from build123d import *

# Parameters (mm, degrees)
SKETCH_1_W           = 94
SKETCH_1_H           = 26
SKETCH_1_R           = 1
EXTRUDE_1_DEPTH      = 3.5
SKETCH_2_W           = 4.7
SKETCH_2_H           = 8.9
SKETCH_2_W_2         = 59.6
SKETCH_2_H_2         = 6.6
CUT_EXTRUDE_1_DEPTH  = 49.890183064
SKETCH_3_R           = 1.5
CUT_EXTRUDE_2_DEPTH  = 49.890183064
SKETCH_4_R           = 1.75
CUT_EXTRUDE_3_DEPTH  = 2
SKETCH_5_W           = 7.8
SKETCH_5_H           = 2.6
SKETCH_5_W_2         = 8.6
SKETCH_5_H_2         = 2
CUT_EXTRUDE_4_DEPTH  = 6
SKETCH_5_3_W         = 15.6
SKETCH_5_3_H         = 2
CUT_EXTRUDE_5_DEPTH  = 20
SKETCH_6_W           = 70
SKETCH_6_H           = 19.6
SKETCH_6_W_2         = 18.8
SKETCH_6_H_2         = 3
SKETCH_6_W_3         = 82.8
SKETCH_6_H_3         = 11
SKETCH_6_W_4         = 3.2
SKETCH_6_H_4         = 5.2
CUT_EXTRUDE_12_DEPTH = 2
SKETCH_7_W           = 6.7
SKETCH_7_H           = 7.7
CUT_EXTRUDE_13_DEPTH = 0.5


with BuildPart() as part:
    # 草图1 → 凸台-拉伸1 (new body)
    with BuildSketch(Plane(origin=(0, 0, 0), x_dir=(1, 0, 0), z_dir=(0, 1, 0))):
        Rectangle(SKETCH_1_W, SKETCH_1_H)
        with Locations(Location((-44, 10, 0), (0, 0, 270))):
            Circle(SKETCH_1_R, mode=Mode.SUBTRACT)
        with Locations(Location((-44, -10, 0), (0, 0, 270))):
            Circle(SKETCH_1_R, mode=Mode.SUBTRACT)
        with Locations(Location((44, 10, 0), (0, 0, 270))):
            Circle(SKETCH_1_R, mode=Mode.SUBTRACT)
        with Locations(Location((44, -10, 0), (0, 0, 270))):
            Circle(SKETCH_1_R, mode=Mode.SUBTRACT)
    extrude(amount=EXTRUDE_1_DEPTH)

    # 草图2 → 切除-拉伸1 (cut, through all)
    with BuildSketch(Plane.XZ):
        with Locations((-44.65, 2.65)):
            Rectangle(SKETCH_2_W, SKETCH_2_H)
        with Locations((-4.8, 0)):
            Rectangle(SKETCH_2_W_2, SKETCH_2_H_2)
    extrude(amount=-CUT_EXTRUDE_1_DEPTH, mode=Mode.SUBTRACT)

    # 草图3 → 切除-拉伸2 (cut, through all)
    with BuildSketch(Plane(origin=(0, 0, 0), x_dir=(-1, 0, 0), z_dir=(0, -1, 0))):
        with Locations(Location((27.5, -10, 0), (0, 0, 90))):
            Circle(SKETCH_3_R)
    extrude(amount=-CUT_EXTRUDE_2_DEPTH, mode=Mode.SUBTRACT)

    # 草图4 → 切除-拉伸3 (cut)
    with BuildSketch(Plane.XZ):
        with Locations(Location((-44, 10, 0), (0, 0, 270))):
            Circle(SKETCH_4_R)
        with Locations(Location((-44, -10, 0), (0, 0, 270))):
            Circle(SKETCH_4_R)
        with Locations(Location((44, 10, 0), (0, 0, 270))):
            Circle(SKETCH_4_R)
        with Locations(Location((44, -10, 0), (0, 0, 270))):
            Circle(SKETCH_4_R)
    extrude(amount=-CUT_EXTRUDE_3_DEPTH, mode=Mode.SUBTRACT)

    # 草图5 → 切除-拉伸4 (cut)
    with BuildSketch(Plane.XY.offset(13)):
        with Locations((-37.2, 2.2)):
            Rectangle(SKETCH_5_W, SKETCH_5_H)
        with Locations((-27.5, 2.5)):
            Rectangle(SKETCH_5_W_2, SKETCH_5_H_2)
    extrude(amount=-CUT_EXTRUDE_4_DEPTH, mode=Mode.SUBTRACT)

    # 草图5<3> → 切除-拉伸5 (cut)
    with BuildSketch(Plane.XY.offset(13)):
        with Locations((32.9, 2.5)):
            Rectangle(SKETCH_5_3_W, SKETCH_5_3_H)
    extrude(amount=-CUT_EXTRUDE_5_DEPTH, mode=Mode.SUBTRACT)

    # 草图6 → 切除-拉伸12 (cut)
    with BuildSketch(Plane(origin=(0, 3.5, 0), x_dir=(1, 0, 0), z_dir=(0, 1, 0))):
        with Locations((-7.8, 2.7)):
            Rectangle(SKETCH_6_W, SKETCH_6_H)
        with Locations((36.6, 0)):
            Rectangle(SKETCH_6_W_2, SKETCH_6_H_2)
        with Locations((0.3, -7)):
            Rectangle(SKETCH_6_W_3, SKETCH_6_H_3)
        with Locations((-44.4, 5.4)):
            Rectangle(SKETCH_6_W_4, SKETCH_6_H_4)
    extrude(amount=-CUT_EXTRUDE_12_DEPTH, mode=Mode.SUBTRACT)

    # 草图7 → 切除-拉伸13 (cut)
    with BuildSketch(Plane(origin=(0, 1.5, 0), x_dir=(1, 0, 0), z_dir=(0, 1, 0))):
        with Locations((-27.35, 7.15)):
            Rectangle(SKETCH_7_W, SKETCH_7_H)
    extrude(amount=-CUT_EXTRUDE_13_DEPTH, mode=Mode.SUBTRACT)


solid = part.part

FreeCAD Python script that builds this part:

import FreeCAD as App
import Part
import Sketcher

V = App.Vector

doc = App.newDocument("Part")
params = doc.addObject("Spreadsheet::Sheet", "Params")
for row, (alias, value) in enumerate([
    ("sketch1_diameter", "2 mm"),
    ("sketch1_width", "94 mm"),
    ("sketch1_height", "26 mm"),
    ("pad1_length", "3.5 mm"),
    ("sketch2_width", "4.7 mm"),
    ("sketch2_width2", "59.6 mm"),
    ("sketch2_height", "8.9 mm"),
    ("sketch2_height2", "6.6 mm"),
    ("sketch3_diameter", "3 mm"),
    ("sketch4_diameter", "3.5 mm"),
    ("pocket3_length", "2 mm"),
    ("sketch5_height", "2 mm"),
    ("sketch5_width", "7.8 mm"),
    ("sketch5_width2", "8.6 mm"),
    ("sketch5_height2", "2.6 mm"),
    ("pocket4_length", "6 mm"),
    ("sketch6_height", "2 mm"),
    ("sketch6_width", "15.6 mm"),
    ("pocket5_length", "20 mm"),
    ("sketch7_width", "70 mm"),
    ("sketch7_height", "11 mm"),
    ("sketch7_height2", "3 mm"),
    ("sketch7_width2", "1.7 mm"),
    ("sketch7_width3", "82.8 mm"),
    ("pocket6_length", "2 mm"),
    ("sketch8_width", "6.7 mm"),
    ("sketch8_height", "7.7 mm"),
    ("pocket7_length", "0.5 mm"),
], start=1):
    params.set(f"A{row}", alias)
    params.set(f"B{row}", "=" + value)
    params.setAlias(f"B{row}", alias)

body = doc.addObject("PartDesign::Body", "Body")

# Sketch on XZ plane
sketch1 = body.newObject("Sketcher::SketchObject", "Sketch")
sketch1.AttachmentSupport = (doc.getObject("XZ_Plane"), [""])
sketch1.MapMode = "FlatFace"
sketch1.addGeometry(Part.LineSegment(V(-47, -13, 0), V(-47, 13, 0)), False)
sketch1.addGeometry(Part.LineSegment(V(-47, 13, 0), V(47, 13, 0)), False)
sketch1.addGeometry(Part.LineSegment(V(47, 13, 0), V(47, -13, 0)), False)
sketch1.addGeometry(Part.LineSegment(V(47, -13, 0), V(-47, -13, 0)), False)
sketch1.addGeometry(Part.Circle(V(-44, 10, 0), V(0, 0, 1), 1), False)
sketch1.addGeometry(Part.Circle(V(44, 10, 0), V(0, 0, 1), 1), False)
sketch1.addGeometry(Part.Circle(V(-44, -10, 0), V(0, 0, 1), 1), False)
sketch1.addGeometry(Part.Circle(V(44, -10, 0), V(0, 0, 1), 1), False)
sketch1.addConstraint(Sketcher.Constraint("Coincident", 0, 2, 1, 1))
sketch1.addConstraint(Sketcher.Constraint("Coincident", 1, 2, 2, 1))
sketch1.addConstraint(Sketcher.Constraint("Coincident", 2, 2, 3, 1))
sketch1.addConstraint(Sketcher.Constraint("Coincident", 3, 2, 0, 1))
sketch1.addConstraint(Sketcher.Constraint("Vertical", 0))
sketch1.addConstraint(Sketcher.Constraint("Horizontal", 1))
sketch1.addConstraint(Sketcher.Constraint("Vertical", 2))
sketch1.addConstraint(Sketcher.Constraint("Horizontal", 3))
sketch1.addConstraint(Sketcher.Constraint("Equal", 4, 5))
sketch1.addConstraint(Sketcher.Constraint("Equal", 5, 6))
sketch1.addConstraint(Sketcher.Constraint("Equal", 6, 7))
sketch1.addConstraint(Sketcher.Constraint("Symmetric", 5, 3, 6, 3, -1, 1))
sketch1.addConstraint(Sketcher.Constraint("Symmetric", 4, 3, 7, 3, -1, 1))
sketch1.addConstraint(Sketcher.Constraint("Symmetric", 0, 2, 2, 2, -1, 1))
sketch1.addConstraint(Sketcher.Constraint("Symmetric", 4, 3, 5, 3, -2))
sketch1.addConstraint(Sketcher.Constraint("Diameter", 4, 2.0))
sketch1.addConstraint(Sketcher.Constraint("DistanceX", 1, 1, 1, 2, 94.0))
sketch1.addConstraint(Sketcher.Constraint("DistanceY", 0, 1, 0, 2, 26.0))
sketch1.addConstraint(Sketcher.Constraint("DistanceX", 4, 3, -1, 1, 44.0))
sketch1.addConstraint(Sketcher.Constraint("DistanceY", -1, 1, 4, 3, 10.0))
sketch1.setExpression("Constraints[15]", "Params.sketch1_diameter")
sketch1.setExpression("Constraints[16]", "Params.sketch1_width")
sketch1.setExpression("Constraints[17]", "Params.sketch1_height")
pad1 = body.newObject("PartDesign::Pad", "Pad")
pad1.Profile = sketch1
pad1.setExpression("Length", "Params.pad1_length")
pad1.Reversed = True

# Sketch on XZ plane
sketch2 = body.newObject("Sketcher::SketchObject", "Sketch001")
sketch2.AttachmentSupport = (doc.getObject("XZ_Plane"), [""])
sketch2.MapMode = "FlatFace"
sketch2.addGeometry(Part.LineSegment(V(-47, 7.1, 0), V(-47, -1.8, 0)), False)
sketch2.addGeometry(Part.LineSegment(V(-47, -1.8, 0), V(-42.3, -1.8, 0)), False)
sketch2.addGeometry(Part.LineSegment(V(-42.3, -1.8, 0), V(-42.3, 7.1, 0)), False)
sketch2.addGeometry(Part.LineSegment(V(-42.3, 7.1, 0), V(-47, 7.1, 0)), False)
sketch2.addGeometry(Part.LineSegment(V(-34.6, 3.3, 0), V(-34.6, -3.3, 0)), False)
sketch2.addGeometry(Part.LineSegment(V(-34.6, -3.3, 0), V(25, -3.3, 0)), False)
sketch2.addGeometry(Part.LineSegment(V(25, -3.3, 0), V(25, 3.3, 0)), False)
sketch2.addGeometry(Part.LineSegment(V(25, 3.3, 0), V(-34.6, 3.3, 0)), False)
sketch2.addConstraint(Sketcher.Constraint("Coincident", 0, 2, 1, 1))
sketch2.addConstraint(Sketcher.Constraint("Coincident", 1, 2, 2, 1))
sketch2.addConstraint(Sketcher.Constraint("Coincident", 2, 2, 3, 1))
sketch2.addConstraint(Sketcher.Constraint("Coincident", 3, 2, 0, 1))
sketch2.addConstraint(Sketcher.Constraint("Coincident", 4, 2, 5, 1))
sketch2.addConstraint(Sketcher.Constraint("Coincident", 5, 2, 6, 1))
sketch2.addConstraint(Sketcher.Constraint("Coincident", 6, 2, 7, 1))
sketch2.addConstraint(Sketcher.Constraint("Coincident", 7, 2, 4, 1))
sketch2.addConstraint(Sketcher.Constraint("Vertical", 0))
sketch2.addConstraint(Sketcher.Constraint("Horizontal", 1))
sketch2.addConstraint(Sketcher.Constraint("Vertical", 2))
sketch2.addConstraint(Sketcher.Constraint("Horizontal", 3))
sketch2.addConstraint(Sketcher.Constraint("Vertical", 4))
sketch2.addConstraint(Sketcher.Constraint("Horizontal", 5))
sketch2.addConstraint(Sketcher.Constraint("Vertical", 6))
sketch2.addConstraint(Sketcher.Constraint("Horizontal", 7))
sketch2.addConstraint(Sketcher.Constraint("DistanceX", 1, 1, 1, 2, 4.7))
sketch2.addConstraint(Sketcher.Constraint("DistanceX", 5, 1, 5, 2, 59.6))
sketch2.addConstraint(Sketcher.Constraint("DistanceY", 0, 2, 0, 1, 8.9))
sketch2.addConstraint(Sketcher.Constraint("DistanceY", 4, 2, 4, 1, 6.6))
sketch2.addConstraint(Sketcher.Constraint("DistanceX", 0, 2, -1, 1, 47.0))
sketch2.addConstraint(Sketcher.Constraint("DistanceX", -1, 1, 5, 2, 25.0))
sketch2.addConstraint(Sketcher.Constraint("DistanceY", 0, 2, -1, 1, 1.8))
sketch2.addConstraint(Sketcher.Constraint("DistanceY", 4, 2, -1, 1, 3.3))
sketch2.setExpression("Constraints[16]", "Params.sketch2_width")
sketch2.setExpression("Constraints[17]", "Params.sketch2_width2")
sketch2.setExpression("Constraints[18]", "Params.sketch2_height")
sketch2.setExpression("Constraints[19]", "Params.sketch2_height2")
pocket1 = body.newObject("PartDesign::Pocket", "Pocket")
pocket1.Profile = sketch2
pocket1.Type = "ThroughAll"

# Sketch on XZ plane
sketch3 = body.newObject("Sketcher::SketchObject", "Sketch002")
sketch3.AttachmentSupport = (doc.getObject("XZ_Plane"), [""])
sketch3.MapMode = "FlatFace"
sketch3.addGeometry(Part.Circle(V(-27.5, 10, 0), V(0, 0, 1), 1.5), False)
sketch3.addConstraint(Sketcher.Constraint("Diameter", 0, 3.0))
sketch3.addConstraint(Sketcher.Constraint("DistanceY", -1, 1, 0, 3, 10.0))
sketch3.addConstraint(Sketcher.Constraint("DistanceX", 0, 3, -1, 1, 27.5))
sketch3.setExpression("Constraints[0]", "Params.sketch3_diameter")
pocket2 = body.newObject("PartDesign::Pocket", "Pocket001")
pocket2.Profile = sketch3
pocket2.Type = "ThroughAll"

# Sketch on XZ plane
sketch4 = body.newObject("Sketcher::SketchObject", "Sketch003")
sketch4.AttachmentSupport = (doc.getObject("XZ_Plane"), [""])
sketch4.MapMode = "FlatFace"
sketch4.addGeometry(Part.Circle(V(-44, 10, 0), V(0, 0, 1), 1.8), False)
sketch4.addGeometry(Part.Circle(V(-44, -10, 0), V(0, 0, 1), 1.8), False)
sketch4.addGeometry(Part.Circle(V(44, 10, 0), V(0, 0, 1), 1.8), False)
sketch4.addGeometry(Part.Circle(V(44, -10, 0), V(0, 0, 1), 1.8), False)
sketch4.addConstraint(Sketcher.Constraint("Equal", 0, 1))
sketch4.addConstraint(Sketcher.Constraint("Equal", 1, 2))
sketch4.addConstraint(Sketcher.Constraint("Equal", 2, 3))
sketch4.addConstraint(Sketcher.Constraint("Symmetric", 1, 3, 2, 3, -1, 1))
sketch4.addConstraint(Sketcher.Constraint("Symmetric", 0, 3, 3, 3, -1, 1))
sketch4.addConstraint(Sketcher.Constraint("Symmetric", 0, 3, 2, 3, -2))
sketch4.addConstraint(Sketcher.Constraint("Diameter", 0, 3.5))
sketch4.addConstraint(Sketcher.Constraint("DistanceX", 0, 3, -1, 1, 44.0))
sketch4.addConstraint(Sketcher.Constraint("DistanceY", -1, 1, 0, 3, 10.0))
sketch4.setExpression("Constraints[6]", "Params.sketch4_diameter")
pocket3 = body.newObject("PartDesign::Pocket", "Pocket002")
pocket3.Profile = sketch4
pocket3.setExpression("Length", "Params.pocket3_length")

# Sketch on XY plane
sketch5 = body.newObject("Sketcher::SketchObject", "Sketch004")
sketch5.AttachmentSupport = (doc.getObject("XY_Plane"), [""])
sketch5.MapMode = "FlatFace"
sketch5.AttachmentOffset = App.Placement(V(0, 0, 13), App.Rotation())
sketch5.addGeometry(Part.LineSegment(V(-41.1, 3.5, 0), V(-41.1, 0.9, 0)), False)
sketch5.addGeometry(Part.LineSegment(V(-41.1, 0.9, 0), V(-33.3, 0.9, 0)), False)
sketch5.addGeometry(Part.LineSegment(V(-33.3, 0.9, 0), V(-33.3, 3.5, 0)), False)
sketch5.addGeometry(Part.LineSegment(V(-33.3, 3.5, 0), V(-41.1, 3.5, 0)), False)
sketch5.addGeometry(Part.LineSegment(V(-31.8, 3.5, 0), V(-31.8, 1.5, 0)), False)
sketch5.addGeometry(Part.LineSegment(V(-31.8, 1.5, 0), V(-23.2, 1.5, 0)), False)
sketch5.addGeometry(Part.LineSegment(V(-23.2, 1.5, 0), V(-23.2, 3.5, 0)), False)
sketch5.addGeometry(Part.LineSegment(V(-23.2, 3.5, 0), V(-31.8, 3.5, 0)), False)
sketch5.addConstraint(Sketcher.Constraint("Coincident", 0, 2, 1, 1))
sketch5.addConstraint(Sketcher.Constraint("Coincident", 1, 2, 2, 1))
sketch5.addConstraint(Sketcher.Constraint("Coincident", 2, 2, 3, 1))
sketch5.addConstraint(Sketcher.Constraint("Coincident", 3, 2, 0, 1))
sketch5.addConstraint(Sketcher.Constraint("Coincident", 4, 2, 5, 1))
sketch5.addConstraint(Sketcher.Constraint("Coincident", 5, 2, 6, 1))
sketch5.addConstraint(Sketcher.Constraint("Coincident", 6, 2, 7, 1))
sketch5.addConstraint(Sketcher.Constraint("Coincident", 7, 2, 4, 1))
sketch5.addConstraint(Sketcher.Constraint("Vertical", 0))
sketch5.addConstraint(Sketcher.Constraint("Horizontal", 1))
sketch5.addConstraint(Sketcher.Constraint("Vertical", 2))
sketch5.addConstraint(Sketcher.Constraint("Horizontal", 3))
sketch5.addConstraint(Sketcher.Constraint("Vertical", 4))
sketch5.addConstraint(Sketcher.Constraint("Horizontal", 5))
sketch5.addConstraint(Sketcher.Constraint("Vertical", 6))
sketch5.addConstraint(Sketcher.Constraint("Horizontal", 7))
sketch5.addConstraint(Sketcher.Constraint("Horizontal", 3, 2, 6, 2))
sketch5.addConstraint(Sketcher.Constraint("DistanceY", 4, 2, 4, 1, 2.0))
sketch5.addConstraint(Sketcher.Constraint("DistanceX", 1, 1, 1, 2, 7.8))
sketch5.addConstraint(Sketcher.Constraint("DistanceX", 5, 1, 5, 2, 8.6))
sketch5.addConstraint(Sketcher.Constraint("DistanceY", 0, 2, 0, 1, 2.6))
sketch5.addConstraint(Sketcher.Constraint("DistanceX", 0, 2, -1, 1, 41.1))
sketch5.addConstraint(Sketcher.Constraint("DistanceY", -1, 1, 0, 2, 0.9))
sketch5.addConstraint(Sketcher.Constraint("DistanceX", 4, 2, -1, 1, 31.8))
sketch5.setExpression("Constraints[17]", "Params.sketch5_height")
sketch5.setExpression("Constraints[18]", "Params.sketch5_width")
sketch5.setExpression("Constraints[19]", "Params.sketch5_width2")
sketch5.setExpression("Constraints[20]", "Params.sketch5_height2")
pocket4 = body.newObject("PartDesign::Pocket", "Pocket003")
pocket4.Profile = sketch5
pocket4.setExpression("Length", "Params.pocket4_length")

# Sketch on XY plane
sketch6 = body.newObject("Sketcher::SketchObject", "Sketch005")
sketch6.AttachmentSupport = (doc.getObject("XY_Plane"), [""])
sketch6.MapMode = "FlatFace"
sketch6.AttachmentOffset = App.Placement(V(0, 0, 13), App.Rotation())
sketch6.addGeometry(Part.LineSegment(V(25.1, 3.5, 0), V(25.1, 1.5, 0)), False)
sketch6.addGeometry(Part.LineSegment(V(25.1, 1.5, 0), V(40.7, 1.5, 0)), False)
sketch6.addGeometry(Part.LineSegment(V(40.7, 1.5, 0), V(40.7, 3.5, 0)), False)
sketch6.addGeometry(Part.LineSegment(V(40.7, 3.5, 0), V(25.1, 3.5, 0)), False)
sketch6.addConstraint(Sketcher.Constraint("Coincident", 0, 2, 1, 1))
sketch6.addConstraint(Sketcher.Constraint("Coincident", 1, 2, 2, 1))
sketch6.addConstraint(Sketcher.Constraint("Coincident", 2, 2, 3, 1))
sketch6.addConstraint(Sketcher.Constraint("Coincident", 3, 2, 0, 1))
sketch6.addConstraint(Sketcher.Constraint("Vertical", 0))
sketch6.addConstraint(Sketcher.Constraint("Horizontal", 1))
sketch6.addConstraint(Sketcher.Constraint("Vertical", 2))
sketch6.addConstraint(Sketcher.Constraint("Horizontal", 3))
sketch6.addConstraint(Sketcher.Constraint("DistanceY", 0, 2, 0, 1, 2.0))
sketch6.addConstraint(Sketcher.Constraint("DistanceX", 1, 1, 1, 2, 15.6))
sketch6.addConstraint(Sketcher.Constraint("DistanceX", -1, 1, 0, 2, 25.1))
sketch6.addConstraint(Sketcher.Constraint("DistanceY", -1, 1, 0, 2, 1.5))
sketch6.setExpression("Constraints[8]", "Params.sketch6_height")
sketch6.setExpression("Constraints[9]", "Params.sketch6_width")
pocket5 = body.newObject("PartDesign::Pocket", "Pocket004")
pocket5.Profile = sketch6
pocket5.setExpression("Length", "Params.pocket5_length")

# Sketch on XZ plane
sketch7 = body.newObject("Sketcher::SketchObject", "Sketch006")
sketch7.AttachmentSupport = (doc.getObject("XZ_Plane"), [""])
sketch7.MapMode = "FlatFace"
sketch7.AttachmentOffset = App.Placement(V(0, 0, -3.5), App.Rotation())
sketch7.addGeometry(Part.LineSegment(V(-42.8, -2.8, 0), V(-42.8, 7.1, 0)), False)
sketch7.addGeometry(Part.LineSegment(V(-42.8, 7.1, 0), V(-41.1, 7.1, 0)), False)
sketch7.addGeometry(Part.LineSegment(V(-41.1, 7.1, 0), V(-41.1, 12.5, 0)), False)
sketch7.addGeometry(Part.LineSegment(V(-41.1, 12.5, 0), V(41.7, 12.5, 0)), False)
sketch7.addGeometry(Part.LineSegment(V(41.7, 12.5, 0), V(41.7, 1.5, 0)), False)
sketch7.addGeometry(Part.LineSegment(V(41.7, 1.5, 0), V(46, 1.5, 0)), False)
sketch7.addGeometry(Part.LineSegment(V(46, 1.5, 0), V(46, -1.5, 0)), False)
sketch7.addGeometry(Part.LineSegment(V(46, -1.5, 0), V(27.2, -1.5, 0)), False)
sketch7.addGeometry(Part.LineSegment(V(27.2, -1.5, 0), V(27.2, -12.5, 0)), False)
sketch7.addGeometry(Part.LineSegment(V(27.2, -12.5, 0), V(-42.8, -12.5, 0)), False)
sketch7.addGeometry(Part.LineSegment(V(-42.8, -12.5, 0), V(-42.8, -8, 0)), False)
sketch7.addGeometry(Part.LineSegment(V(-42.8, -8, 0), V(-46, -8, 0)), False)
sketch7.addGeometry(Part.LineSegment(V(-46, -8, 0), V(-46, -2.8, 0)), False)
sketch7.addGeometry(Part.LineSegment(V(-46, -2.8, 0), V(-42.8, -2.8, 0)), False)
sketch7.addConstraint(Sketcher.Constraint("Coincident", 0, 2, 1, 1))
sketch7.addConstraint(Sketcher.Constraint("Coincident", 1, 2, 2, 1))
sketch7.addConstraint(Sketcher.Constraint("Coincident", 2, 2, 3, 1))
sketch7.addConstraint(Sketcher.Constraint("Coincident", 3, 2, 4, 1))
sketch7.addConstraint(Sketcher.Constraint("Coincident", 4, 2, 5, 1))
sketch7.addConstraint(Sketcher.Constraint("Coincident", 5, 2, 6, 1))
sketch7.addConstraint(Sketcher.Constraint("Coincident", 6, 2, 7, 1))
sketch7.addConstraint(Sketcher.Constraint("Coincident", 7, 2, 8, 1))
sketch7.addConstraint(Sketcher.Constraint("Coincident", 8, 2, 9, 1))
sketch7.addConstraint(Sketcher.Constraint("Coincident", 9, 2, 10, 1))
sketch7.addConstraint(Sketcher.Constraint("Coincident", 10, 2, 11, 1))
sketch7.addConstraint(Sketcher.Constraint("Coincident", 11, 2, 12, 1))
sketch7.addConstraint(Sketcher.Constraint("Coincident", 12, 2, 13, 1))
sketch7.addConstraint(Sketcher.Constraint("Coincident", 13, 2, 0, 1))
sketch7.addConstraint(Sketcher.Constraint("Vertical", 0))
sketch7.addConstraint(Sketcher.Constraint("Horizontal", 1))
sketch7.addConstraint(Sketcher.Constraint("Vertical", 2))
sketch7.addConstraint(Sketcher.Constraint("Horizontal", 3))
sketch7.addConstraint(Sketcher.Constraint("Vertical", 4))
sketch7.addConstraint(Sketcher.Constraint("Horizontal", 5))
sketch7.addConstraint(Sketcher.Constraint("Vertical", 6))
sketch7.addConstraint(Sketcher.Constraint("Horizontal", 7))
sketch7.addConstraint(Sketcher.Constraint("Vertical", 8))
sketch7.addConstraint(Sketcher.Constraint("Horizontal", 9))
sketch7.addConstraint(Sketcher.Constraint("Vertical", 10))
sketch7.addConstraint(Sketcher.Constraint("Horizontal", 11))
sketch7.addConstraint(Sketcher.Constraint("Vertical", 12))
sketch7.addConstraint(Sketcher.Constraint("Horizontal", 13))
sketch7.addConstraint(Sketcher.Constraint("Vertical", 0, 2, 9, 2))
sketch7.addConstraint(Sketcher.Constraint("Equal", 4, 8))
sketch7.addConstraint(Sketcher.Constraint("DistanceX", 9, 2, 9, 1, 70.0))
sketch7.addConstraint(Sketcher.Constraint("DistanceY", 4, 2, 4, 1, 11.0))
sketch7.addConstraint(Sketcher.Constraint("DistanceY", 6, 2, 6, 1, 3.0))
sketch7.addConstraint(Sketcher.Constraint("DistanceX", 1, 1, 1, 2, 1.7))
sketch7.addConstraint(Sketcher.Constraint("DistanceX", 3, 1, 3, 2, 82.8))
sketch7.addConstraint(Sketcher.Constraint("DistanceX", 5, 1, 5, 2, 4.3))
sketch7.addConstraint(Sketcher.Constraint("DistanceX", 11, 2, 11, 1, 3.2))
sketch7.addConstraint(Sketcher.Constraint("DistanceY", 0, 1, 0, 2, 9.9))
sketch7.addConstraint(Sketcher.Constraint("DistanceY", 2, 1, 2, 2, 5.4))
sketch7.addConstraint(Sketcher.Constraint("DistanceY", 10, 1, 10, 2, 4.5))
sketch7.addConstraint(Sketcher.Constraint("DistanceX", -1, 1, 5, 2, 46.0))
sketch7.addConstraint(Sketcher.Constraint("DistanceY", 10, 2, -1, 1, 8.0))
sketch7.setExpression("Constraints[30]", "Params.sketch7_width")
sketch7.setExpression("Constraints[31]", "Params.sketch7_height")
sketch7.setExpression("Constraints[32]", "Params.sketch7_height2")
sketch7.setExpression("Constraints[33]", "Params.sketch7_width2")
sketch7.setExpression("Constraints[34]", "Params.sketch7_width3")
pocket6 = body.newObject("PartDesign::Pocket", "Pocket005")
pocket6.Profile = sketch7
pocket6.setExpression("Length", "Params.pocket6_length")
pocket6.Reversed = True

# Sketch on XZ plane
sketch8 = body.newObject("Sketcher::SketchObject", "Sketch007")
sketch8.AttachmentSupport = (doc.getObject("XZ_Plane"), [""])
sketch8.MapMode = "FlatFace"
sketch8.AttachmentOffset = App.Placement(V(0, 0, -1.5), App.Rotation())
sketch8.addGeometry(Part.LineSegment(V(-31, -11, 0), V(-31, -3, 0)), False)
sketch8.addGeometry(Part.LineSegment(V(-31, -3, 0), V(-24, -3, 0)), False)
sketch8.addGeometry(Part.LineSegment(V(-24, -3, 0), V(-24, -11, 0)), False)
sketch8.addGeometry(Part.LineSegment(V(-24, -11, 0), V(-31, -11, 0)), False)
sketch8.addConstraint(Sketcher.Constraint("Coincident", 0, 2, 1, 1))
sketch8.addConstraint(Sketcher.Constraint("Coincident", 1, 2, 2, 1))
sketch8.addConstraint(Sketcher.Constraint("Coincident", 2, 2, 3, 1))
sketch8.addConstraint(Sketcher.Constraint("Coincident", 3, 2, 0, 1))
sketch8.addConstraint(Sketcher.Constraint("Vertical", 0))
sketch8.addConstraint(Sketcher.Constraint("Horizontal", 1))
sketch8.addConstraint(Sketcher.Constraint("Vertical", 2))
sketch8.addConstraint(Sketcher.Constraint("Horizontal", 3))
sketch8.addConstraint(Sketcher.Constraint("DistanceX", 1, 1, 1, 2, 6.7))
sketch8.addConstraint(Sketcher.Constraint("DistanceY", 0, 1, 0, 2, 7.7))
sketch8.addConstraint(Sketcher.Constraint("DistanceX", 1, 2, -1, 1, 24.0))
sketch8.addConstraint(Sketcher.Constraint("DistanceY", 2, 2, -1, 1, 11.0))
sketch8.setExpression("Constraints[8]", "Params.sketch8_width")
sketch8.setExpression("Constraints[9]", "Params.sketch8_height")
pocket7 = body.newObject("PartDesign::Pocket", "Pocket006")
pocket7.Profile = sketch8
pocket7.setExpression("Length", "Params.pocket7_length")
pocket7.Reversed = True

doc.recompute()
